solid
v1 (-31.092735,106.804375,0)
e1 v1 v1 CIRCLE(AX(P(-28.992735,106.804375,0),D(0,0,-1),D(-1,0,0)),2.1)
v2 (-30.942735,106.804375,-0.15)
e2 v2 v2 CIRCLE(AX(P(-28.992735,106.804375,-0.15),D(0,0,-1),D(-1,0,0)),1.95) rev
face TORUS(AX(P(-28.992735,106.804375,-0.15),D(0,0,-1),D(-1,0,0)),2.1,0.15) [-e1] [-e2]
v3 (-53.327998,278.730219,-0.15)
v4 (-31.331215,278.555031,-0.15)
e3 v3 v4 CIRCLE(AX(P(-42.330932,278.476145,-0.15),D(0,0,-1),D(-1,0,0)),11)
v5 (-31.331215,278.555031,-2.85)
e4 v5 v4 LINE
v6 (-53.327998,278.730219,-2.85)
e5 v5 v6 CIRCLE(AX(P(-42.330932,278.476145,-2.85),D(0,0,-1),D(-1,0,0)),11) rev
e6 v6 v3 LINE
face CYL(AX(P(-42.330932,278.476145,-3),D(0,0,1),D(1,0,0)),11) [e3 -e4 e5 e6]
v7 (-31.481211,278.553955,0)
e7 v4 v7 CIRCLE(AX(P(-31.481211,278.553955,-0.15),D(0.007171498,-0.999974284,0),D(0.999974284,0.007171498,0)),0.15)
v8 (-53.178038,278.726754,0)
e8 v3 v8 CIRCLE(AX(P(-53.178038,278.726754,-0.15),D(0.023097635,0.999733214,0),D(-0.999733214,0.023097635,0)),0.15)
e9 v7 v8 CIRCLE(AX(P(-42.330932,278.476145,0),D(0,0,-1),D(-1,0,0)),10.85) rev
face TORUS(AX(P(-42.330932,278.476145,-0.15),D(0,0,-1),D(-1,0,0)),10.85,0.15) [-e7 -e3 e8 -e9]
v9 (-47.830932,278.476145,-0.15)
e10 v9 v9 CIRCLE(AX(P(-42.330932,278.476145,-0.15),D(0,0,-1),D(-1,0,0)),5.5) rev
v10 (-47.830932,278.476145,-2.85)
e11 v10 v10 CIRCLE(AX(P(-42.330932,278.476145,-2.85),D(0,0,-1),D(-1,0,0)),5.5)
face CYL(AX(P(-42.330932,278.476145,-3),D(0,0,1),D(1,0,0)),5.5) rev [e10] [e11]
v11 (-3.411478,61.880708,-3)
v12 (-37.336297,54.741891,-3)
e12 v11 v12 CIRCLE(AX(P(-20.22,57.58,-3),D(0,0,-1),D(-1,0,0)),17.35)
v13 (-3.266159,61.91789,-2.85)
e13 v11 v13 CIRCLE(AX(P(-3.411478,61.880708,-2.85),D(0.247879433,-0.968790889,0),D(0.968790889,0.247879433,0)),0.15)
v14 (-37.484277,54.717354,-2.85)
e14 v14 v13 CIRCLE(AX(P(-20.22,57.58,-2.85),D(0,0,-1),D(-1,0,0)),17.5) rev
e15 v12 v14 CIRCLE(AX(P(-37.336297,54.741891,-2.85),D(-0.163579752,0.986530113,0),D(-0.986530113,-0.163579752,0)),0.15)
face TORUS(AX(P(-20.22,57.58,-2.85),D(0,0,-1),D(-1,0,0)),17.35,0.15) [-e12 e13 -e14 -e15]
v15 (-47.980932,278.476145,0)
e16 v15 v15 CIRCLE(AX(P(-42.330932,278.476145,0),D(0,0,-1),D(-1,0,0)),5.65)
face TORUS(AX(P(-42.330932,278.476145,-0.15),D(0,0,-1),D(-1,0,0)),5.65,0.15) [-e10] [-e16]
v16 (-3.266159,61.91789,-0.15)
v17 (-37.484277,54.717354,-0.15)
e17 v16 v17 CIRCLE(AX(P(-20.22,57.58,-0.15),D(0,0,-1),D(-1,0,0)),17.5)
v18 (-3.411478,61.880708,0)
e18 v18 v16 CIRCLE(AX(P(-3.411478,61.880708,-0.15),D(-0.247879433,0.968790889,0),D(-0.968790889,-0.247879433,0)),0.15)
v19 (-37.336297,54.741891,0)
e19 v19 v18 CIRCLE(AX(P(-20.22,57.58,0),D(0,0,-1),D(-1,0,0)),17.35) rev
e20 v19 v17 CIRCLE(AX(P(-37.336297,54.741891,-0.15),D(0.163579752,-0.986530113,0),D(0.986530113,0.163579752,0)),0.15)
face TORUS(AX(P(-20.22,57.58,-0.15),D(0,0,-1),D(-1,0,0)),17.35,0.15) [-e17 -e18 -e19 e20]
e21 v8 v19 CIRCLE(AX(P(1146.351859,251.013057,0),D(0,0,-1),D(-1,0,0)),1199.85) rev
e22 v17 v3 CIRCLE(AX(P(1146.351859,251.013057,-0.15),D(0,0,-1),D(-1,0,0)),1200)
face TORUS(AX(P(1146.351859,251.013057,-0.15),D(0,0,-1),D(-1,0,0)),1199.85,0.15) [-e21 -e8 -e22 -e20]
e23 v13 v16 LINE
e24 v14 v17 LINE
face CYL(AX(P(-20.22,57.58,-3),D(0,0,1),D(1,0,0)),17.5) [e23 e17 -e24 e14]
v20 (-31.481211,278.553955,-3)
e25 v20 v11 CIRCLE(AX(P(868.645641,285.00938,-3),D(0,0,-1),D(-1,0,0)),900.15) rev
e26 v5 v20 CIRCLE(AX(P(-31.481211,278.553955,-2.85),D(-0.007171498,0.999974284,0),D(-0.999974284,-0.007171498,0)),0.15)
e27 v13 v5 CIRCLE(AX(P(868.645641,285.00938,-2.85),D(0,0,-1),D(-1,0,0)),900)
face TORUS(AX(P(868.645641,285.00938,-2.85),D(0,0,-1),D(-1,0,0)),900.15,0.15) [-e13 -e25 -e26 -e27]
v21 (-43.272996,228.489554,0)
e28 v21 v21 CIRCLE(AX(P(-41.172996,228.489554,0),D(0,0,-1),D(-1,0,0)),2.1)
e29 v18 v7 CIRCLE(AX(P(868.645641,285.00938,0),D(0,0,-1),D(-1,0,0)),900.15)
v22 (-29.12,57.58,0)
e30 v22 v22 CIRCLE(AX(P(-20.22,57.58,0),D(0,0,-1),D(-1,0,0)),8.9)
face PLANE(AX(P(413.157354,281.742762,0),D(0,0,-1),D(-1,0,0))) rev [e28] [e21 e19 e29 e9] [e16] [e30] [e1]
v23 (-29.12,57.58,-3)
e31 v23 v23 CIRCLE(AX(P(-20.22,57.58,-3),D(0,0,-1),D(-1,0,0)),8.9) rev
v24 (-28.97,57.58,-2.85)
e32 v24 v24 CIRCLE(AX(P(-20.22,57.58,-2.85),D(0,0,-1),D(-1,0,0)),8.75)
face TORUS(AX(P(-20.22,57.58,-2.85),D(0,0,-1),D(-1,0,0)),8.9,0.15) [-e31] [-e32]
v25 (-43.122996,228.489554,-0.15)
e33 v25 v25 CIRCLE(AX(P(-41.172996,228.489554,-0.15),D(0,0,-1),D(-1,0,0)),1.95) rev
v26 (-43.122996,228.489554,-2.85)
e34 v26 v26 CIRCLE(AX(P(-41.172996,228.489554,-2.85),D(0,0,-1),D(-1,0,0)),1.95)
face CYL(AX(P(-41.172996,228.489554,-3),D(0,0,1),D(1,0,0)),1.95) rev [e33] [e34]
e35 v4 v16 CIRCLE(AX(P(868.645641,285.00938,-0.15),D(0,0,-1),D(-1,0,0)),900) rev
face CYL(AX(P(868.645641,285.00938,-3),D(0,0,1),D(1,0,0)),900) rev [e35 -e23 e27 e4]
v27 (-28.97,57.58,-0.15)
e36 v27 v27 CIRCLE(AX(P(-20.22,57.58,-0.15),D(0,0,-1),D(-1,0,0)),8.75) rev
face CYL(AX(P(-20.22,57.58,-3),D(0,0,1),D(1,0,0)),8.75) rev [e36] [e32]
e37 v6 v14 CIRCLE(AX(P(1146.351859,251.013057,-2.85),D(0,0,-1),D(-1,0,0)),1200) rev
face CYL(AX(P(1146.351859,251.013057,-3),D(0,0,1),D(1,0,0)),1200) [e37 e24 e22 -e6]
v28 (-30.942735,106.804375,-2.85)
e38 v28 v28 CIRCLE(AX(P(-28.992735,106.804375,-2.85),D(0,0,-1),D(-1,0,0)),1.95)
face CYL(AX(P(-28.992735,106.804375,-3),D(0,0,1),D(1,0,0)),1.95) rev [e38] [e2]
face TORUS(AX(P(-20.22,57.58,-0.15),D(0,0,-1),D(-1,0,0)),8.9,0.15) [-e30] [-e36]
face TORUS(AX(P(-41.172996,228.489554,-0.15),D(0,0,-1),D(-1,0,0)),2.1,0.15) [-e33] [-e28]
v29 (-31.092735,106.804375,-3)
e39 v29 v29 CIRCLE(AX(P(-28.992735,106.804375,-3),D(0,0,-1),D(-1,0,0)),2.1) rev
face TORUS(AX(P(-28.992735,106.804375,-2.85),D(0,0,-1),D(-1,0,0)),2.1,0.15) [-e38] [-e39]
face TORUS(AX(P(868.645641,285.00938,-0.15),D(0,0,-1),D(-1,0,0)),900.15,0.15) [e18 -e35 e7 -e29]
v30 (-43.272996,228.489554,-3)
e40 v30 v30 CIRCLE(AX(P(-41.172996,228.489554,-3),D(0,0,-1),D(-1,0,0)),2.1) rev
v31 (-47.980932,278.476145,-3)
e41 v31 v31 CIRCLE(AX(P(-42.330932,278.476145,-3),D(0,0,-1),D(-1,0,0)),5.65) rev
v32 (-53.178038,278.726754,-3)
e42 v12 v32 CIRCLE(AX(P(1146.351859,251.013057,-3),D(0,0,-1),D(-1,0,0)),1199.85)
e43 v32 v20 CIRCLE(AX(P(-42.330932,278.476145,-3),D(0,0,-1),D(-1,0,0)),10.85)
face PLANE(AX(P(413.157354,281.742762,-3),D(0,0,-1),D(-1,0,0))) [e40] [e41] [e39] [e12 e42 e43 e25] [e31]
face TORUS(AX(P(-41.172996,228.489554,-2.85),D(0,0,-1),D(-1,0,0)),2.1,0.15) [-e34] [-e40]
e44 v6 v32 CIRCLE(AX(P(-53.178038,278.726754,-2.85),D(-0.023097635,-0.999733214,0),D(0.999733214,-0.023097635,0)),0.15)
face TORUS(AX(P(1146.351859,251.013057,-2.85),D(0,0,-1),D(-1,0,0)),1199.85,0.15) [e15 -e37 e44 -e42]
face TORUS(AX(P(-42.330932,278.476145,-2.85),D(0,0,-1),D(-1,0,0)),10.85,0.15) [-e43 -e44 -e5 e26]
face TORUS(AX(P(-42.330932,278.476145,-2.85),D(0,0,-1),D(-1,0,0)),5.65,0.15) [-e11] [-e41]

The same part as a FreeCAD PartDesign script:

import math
import FreeCAD as App
import Part
import Sketcher

V = App.Vector


def edges_at(feature, points):
    """Names of the edges that pass closest to the given points."""
    edges = feature.Shape.Edges
    near = lambda p: min(range(len(edges)), key=lambda i: edges[i].distToShape(Part.Vertex(*p))[0])
    return sorted({f"Edge{near(p) + 1}" for p in points})

doc = App.newDocument("Part")
body = doc.addObject("PartDesign::Body", "Body")

# Sketch on XY plane
sketch1 = body.newObject("Sketcher::SketchObject", "Sketch")
sketch1.AttachmentSupport = (doc.getObject("XY_Plane"), [""])
sketch1.MapMode = "FlatFace"
sketch1.addGeometry(Part.ArcOfCircle(Part.Circle(V(868.6, 285, 0), V(0, 0, 1), 900), math.radians(-179.59), math.radians(-165.65)), False)
sketch1.addGeometry(Part.ArcOfCircle(Part.Circle(V(-42.3, 278.5, 0), V(0, 0, 1), 11), math.radians(0), math.radians(179)), False)
sketch1.addGeometry(Part.ArcOfCircle(Part.Circle(V(1146.4, 251, 0), V(0, 0, 1), 1200), math.radians(178.68), math.radians(189.41)), False)
sketch1.addGeometry(Part.ArcOfCircle(Part.Circle(V(-20.2, 57.6, 0), V(0, 0, 1), 17.5), math.radians(-171), math.radians(14)), False)
sketch1.addGeometry(Part.Circle(V(-20.2, 57.6, 0), V(0, 0, 1), 8.8), False)
sketch1.addGeometry(Part.Circle(V(-29, 106.8, 0), V(0, 0, 1), 1.9), False)
sketch1.addGeometry(Part.Circle(V(-41.2, 228.5, 0), V(0, 0, 1), 1.9), False)
sketch1.addGeometry(Part.Circle(V(-42.3, 278.5, 0), V(0, 0, 1), 5.5), False)
sketch1.addConstraint(Sketcher.Constraint("Tangent", 0, 1, 1, 1))
sketch1.addConstraint(Sketcher.Constraint("Tangent", 1, 2, 2, 1))
sketch1.addConstraint(Sketcher.Constraint("Tangent", 2, 2, 3, 1))
sketch1.addConstraint(Sketcher.Constraint("Tangent", 3, 2, 0, 2))
sketch1.addConstraint(Sketcher.Constraint("Coincident", 4, 3, 3, 3))
sketch1.addConstraint(Sketcher.Constraint("Coincident", 7, 3, 1, 3))
sketch1.addConstraint(Sketcher.Constraint("Equal", 5, 6))
sketch1.addConstraint(Sketcher.Constraint("Diameter", 7, 11.0))
sketch1.addConstraint(Sketcher.Constraint("Radius", 0, 900.0))
sketch1.addConstraint(Sketcher.Constraint("Radius", 1, 11.0))
sketch1.addConstraint(Sketcher.Constraint("Radius", 2, 1200.0))
sketch1.addConstraint(Sketcher.Constraint("Diameter", 4, 17.5))
sketch1.addConstraint(Sketcher.Constraint("Diameter", 5, 3.9))
sketch1.addConstraint(Sketcher.Constraint("Radius", 3, 17.5))
sketch1.addConstraint(Sketcher.Constraint("DistanceX", 3, 3, -1, 1, 20.22))
sketch1.addConstraint(Sketcher.Constraint("DistanceY", -1, 1, 3, 3, 57.58))
sketch1.addConstraint(Sketcher.Constraint("DistanceX", 1, 2, 6, 3, 12.155002))
sketch1.addConstraint(Sketcher.Constraint("DistanceX", -1, 1, 0, 3, 868.645641))
sketch1.addConstraint(Sketcher.Constraint("DistanceX", -1, 1, 2, 3, 1146.351859))
sketch1.addConstraint(Sketcher.Constraint("DistanceY", 5, 3, 1, 3, 171.671769))
sketch1.addConstraint(Sketcher.Constraint("DistanceY", 6, 3, 1, 3, 49.98659))
sketch1.addConstraint(Sketcher.Constraint("DistanceX", 6, 3, 5, 3, 12.180261))
pad1 = body.newObject("PartDesign::Pad", "Pad")
pad1.Profile = sketch1
pad1.Length = 3
pad1.Reversed = True
doc.recompute()

fillet = body.newObject("PartDesign::Fillet", "Fillet")
fillet.Base = (pad1, edges_at(pad1, [
    (-28.97, 57.58, -3),
    (-28.97, 57.58, 0),
    (-16.616, 40.455, -3),
    (-47.831, 278.476, -3),
    (-47.831, 278.476, 0),
    (-23.896, 169.382, -3),
    (-30.943, 106.804, -3),
    (-30.943, 106.804, 0),
    (-43.123, 228.49, -3),
    (-43.123, 228.49, 0),
    (-42.243, 289.476, -3),
    (-23.896, 169.382, 0),
    (-16.616, 40.455, 0),
    (-50.658, 166.352, 0),
    (-42.243, 289.476, 0),
    (-50.658, 166.352, -3),
]))
fillet.Radius = 0.15

doc.recompute()
